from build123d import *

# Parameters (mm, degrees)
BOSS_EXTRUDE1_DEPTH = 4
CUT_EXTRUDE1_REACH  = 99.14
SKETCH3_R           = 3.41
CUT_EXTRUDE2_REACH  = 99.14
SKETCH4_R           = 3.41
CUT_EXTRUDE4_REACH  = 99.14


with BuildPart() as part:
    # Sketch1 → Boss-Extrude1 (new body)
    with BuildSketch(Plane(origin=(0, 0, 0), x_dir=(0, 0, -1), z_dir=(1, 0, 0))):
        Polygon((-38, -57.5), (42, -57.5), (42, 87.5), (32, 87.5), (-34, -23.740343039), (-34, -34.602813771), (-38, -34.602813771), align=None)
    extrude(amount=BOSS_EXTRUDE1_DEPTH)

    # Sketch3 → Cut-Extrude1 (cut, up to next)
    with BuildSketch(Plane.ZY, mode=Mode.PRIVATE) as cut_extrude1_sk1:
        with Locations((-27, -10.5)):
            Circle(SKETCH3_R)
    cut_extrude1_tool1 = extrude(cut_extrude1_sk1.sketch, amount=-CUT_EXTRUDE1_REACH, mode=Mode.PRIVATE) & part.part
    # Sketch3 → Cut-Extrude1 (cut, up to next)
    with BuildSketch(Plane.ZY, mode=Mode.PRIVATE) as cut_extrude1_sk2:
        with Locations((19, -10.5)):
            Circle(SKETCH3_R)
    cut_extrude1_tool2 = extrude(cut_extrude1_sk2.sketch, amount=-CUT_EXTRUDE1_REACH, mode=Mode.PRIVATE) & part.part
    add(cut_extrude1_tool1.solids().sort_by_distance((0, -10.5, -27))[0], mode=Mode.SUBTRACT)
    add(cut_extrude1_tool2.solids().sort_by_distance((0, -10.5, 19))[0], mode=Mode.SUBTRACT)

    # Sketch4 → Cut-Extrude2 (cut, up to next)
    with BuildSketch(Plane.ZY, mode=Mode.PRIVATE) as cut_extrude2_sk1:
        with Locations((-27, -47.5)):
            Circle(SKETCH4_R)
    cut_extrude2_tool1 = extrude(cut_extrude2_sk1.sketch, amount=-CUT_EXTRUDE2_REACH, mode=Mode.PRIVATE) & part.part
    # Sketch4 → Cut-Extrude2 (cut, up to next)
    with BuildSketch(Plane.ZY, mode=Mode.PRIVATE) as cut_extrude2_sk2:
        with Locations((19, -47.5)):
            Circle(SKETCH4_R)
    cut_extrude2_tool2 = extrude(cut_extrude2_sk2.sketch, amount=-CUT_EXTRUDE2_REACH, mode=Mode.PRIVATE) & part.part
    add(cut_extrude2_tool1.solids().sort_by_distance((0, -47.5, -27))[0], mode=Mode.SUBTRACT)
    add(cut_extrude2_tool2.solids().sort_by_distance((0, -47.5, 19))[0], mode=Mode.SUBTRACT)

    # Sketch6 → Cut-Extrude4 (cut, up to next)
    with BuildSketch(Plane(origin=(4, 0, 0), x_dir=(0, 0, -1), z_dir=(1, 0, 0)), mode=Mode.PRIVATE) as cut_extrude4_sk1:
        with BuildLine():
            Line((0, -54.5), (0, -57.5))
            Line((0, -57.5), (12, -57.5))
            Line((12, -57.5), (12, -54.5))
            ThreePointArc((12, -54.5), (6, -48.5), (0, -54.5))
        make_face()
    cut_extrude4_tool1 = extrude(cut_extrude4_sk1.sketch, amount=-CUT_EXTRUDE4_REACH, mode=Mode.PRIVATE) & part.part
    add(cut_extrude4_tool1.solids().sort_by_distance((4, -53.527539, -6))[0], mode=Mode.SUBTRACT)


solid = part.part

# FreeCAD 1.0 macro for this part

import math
import FreeCAD as App
import Part
import Sketcher
from FreeCAD import Vector


def add_polygon(sketch, points):
    """Adds a closed chain of lines whose ends are joined by coincident constraints."""
    first, n = sketch.GeometryCount, len(points)
    for a, b in zip(points, points[1:] + points[:1]):
        sketch.addGeometry(Part.LineSegment(App.Vector(*a, 0), App.Vector(*b, 0)), False)
    for i in range(n):
        sketch.addConstraint(Sketcher.Constraint("Coincident", first + i, 2, first + (i + 1) % n, 1))

doc = App.newDocument("Part")
body = doc.addObject("PartDesign::Body", "Body")

# Sketch on YZ plane
sketch1 = doc.addObject("Sketcher::SketchObject", "Sketch")
body.addObject(sketch1)
sketch1.AttachmentSupport = (doc.YZ_Plane, [""])
sketch1.MapMode = "FlatFace"
add_polygon(sketch1, [(-57.5, 38), (-57.5, -42), (87.5, -42), (87.5, -32), (-23.7, 34), (-34.6, 34), (-34.6, 38)])  # lines 0-6
sketch1.addConstraint([
    Sketcher.Constraint("Vertical", 0),
    Sketcher.Constraint("Horizontal", 1),
    Sketcher.Constraint("Vertical", 2),
    Sketcher.Constraint("Horizontal", 4),
    Sketcher.Constraint("Vertical", 5),
    Sketcher.Constraint("Horizontal", 6),
    Sketcher.Constraint("DistanceX", 1, 1, 1, 2, 145.0),
    Sketcher.Constraint("DistanceY", 0, 2, 0, 1, 80.0),
    Sketcher.Constraint("DistanceY", 2, 1, 2, 2, 10.0),
    Sketcher.Constraint("DistanceY", 5, 1, 5, 2, 4.0),
    Sketcher.Constraint("DistanceY", 0, 2, -1, 1, 42.0),
    Sketcher.Constraint("DistanceX", 0, 2, -1, 1, 57.5),
    Sketcher.Constraint("Distance", 3, 129.346101),
    Sketcher.Constraint("DistanceX", 4, 2, 4, 1, 10.862471),
])
pad1 = doc.addObject("PartDesign::Pad", "Pad")
body.addObject(pad1)
pad1.Profile = sketch1
pad1.Length = 4

# Sketch on YZ plane
sketch2 = doc.addObject("Sketcher::SketchObject", "Sketch001")
body.addObject(sketch2)
sketch2.AttachmentSupport = (doc.YZ_Plane, [""])
sketch2.MapMode = "FlatFace"
sketch2.addGeometry(Part.Circle(Vector(-10.5, -27, 0), Vector(0, 0, 1), 3.4), False)
sketch2.addConstraint([
    Sketcher.Constraint("Diameter", 0, 6.82),
    Sketcher.Constraint("DistanceY", 0, 3, -1, 1, 27.0),
    Sketcher.Constraint("DistanceX", 0, 3, -1, 1, 10.5),
])
pocket1 = doc.addObject("PartDesign::Pocket", "Pocket")
body.addObject(pocket1)
pocket1.Profile = sketch2
pocket1.Type = "UpToFirst"
pocket1.Reversed = True

# Sketch on YZ plane
sketch3 = doc.addObject("Sketcher::SketchObject", "Sketch002")
body.addObject(sketch3)
sketch3.AttachmentSupport = (doc.YZ_Plane, [""])
sketch3.MapMode = "FlatFace"
sketch3.addGeometry(Part.Circle(Vector(-10.5, 19, 0), Vector(0, 0, 1), 3.4), False)
sketch3.addConstraint([
    Sketcher.Constraint("Diameter", 0, 6.82),
    Sketcher.Constraint("DistanceY", -1, 1, 0, 3, 19.0),
    Sketcher.Constraint("DistanceX", 0, 3, -1, 1, 10.5),
])
pocket2 = doc.addObject("PartDesign::Pocket", "Pocket001")
body.addObject(pocket2)
pocket2.Profile = sketch3
pocket2.Type = "UpToFirst"
pocket2.Reversed = True

# Sketch on YZ plane
sketch4 = doc.addObject("Sketcher::SketchObject", "Sketch003")
body.addObject(sketch4)
sketch4.AttachmentSupport = (doc.YZ_Plane, [""])
sketch4.MapMode = "FlatFace"
sketch4.addGeometry(Part.Circle(Vector(-47.5, -27, 0), Vector(0, 0, 1), 3.4), False)
sketch4.addConstraint([
    Sketcher.Constraint("Diameter", 0, 6.82),
    Sketcher.Constraint("DistanceY", 0, 3, -1, 1, 27.0),
    Sketcher.Constraint("DistanceX", 0, 3, -1, 1, 47.5),
])
pocket3 = doc.addObject("PartDesign::Pocket", "Pocket002")
body.addObject(pocket3)
pocket3.Profile = sketch4
pocket3.Type = "UpToFirst"
pocket3.Reversed = True

# Sketch on YZ plane
sketch5 = doc.addObject("Sketcher::SketchObject", "Sketch004")
body.addObject(sketch5)
sketch5.AttachmentSupport = (doc.YZ_Plane, [""])
sketch5.MapMode = "FlatFace"
sketch5.addGeometry(Part.Circle(Vector(-47.5, 19, 0), Vector(0, 0, 1), 3.4), False)
sketch5.addConstraint([
    Sketcher.Constraint("Diameter", 0, 6.82),
    Sketcher.Constraint("DistanceY", -1, 1, 0, 3, 19.0),
    Sketcher.Constraint("DistanceX", 0, 3, -1, 1, 47.5),
])
pocket4 = doc.addObject("PartDesign::Pocket", "Pocket003")
body.addObject(pocket4)
pocket4.Profile = sketch5
pocket4.Type = "UpToFirst"
pocket4.Reversed = True

# Sketch on YZ plane
sketch6 = doc.addObject("Sketcher::SketchObject", "Sketch005")
body.addObject(sketch6)
sketch6.AttachmentSupport = (doc.YZ_Plane, [""])
sketch6.MapMode = "FlatFace"
sketch6.AttachmentOffset = App.Placement(Vector(0, 0, 4), App.Rotation())
sketch6.addGeometry([
    Part.LineSegment(Vector(-54.5, 0, 0), Vector(-57.5, 0, 0)),
    Part.LineSegment(Vector(-57.5, 0, 0), Vector(-57.5, -12, 0)),
    Part.LineSegment(Vector(-57.5, -12, 0), Vector(-54.5, -12, 0)),
    Part.ArcOfCircle(Part.Circle(Vector(-54.5, -6, 0), Vector(0, 0, 1), 6), math.radians(-90), math.radians(90)),
], False)
sketch6.addConstraint([
    Sketcher.Constraint("Coincident", 0, 2, 1, 1),
    Sketcher.Constraint("Coincident", 1, 2, 2, 1),
    Sketcher.Constraint("Tangent", 2, 2, 3, 1),
    Sketcher.Constraint("Tangent", 3, 2, 0, 1),
    Sketcher.Constraint("Horizontal", 0),
    Sketcher.Constraint("Vertical", 1),
    Sketcher.Constraint("Horizontal", 2),
    Sketcher.Constraint("PointOnObject", 0, 2, -1),
    Sketcher.Constraint("Radius", 3, 6.0),
    Sketcher.Constraint("DistanceX", 0, 2, 0, 1, 3.0),
    Sketcher.Constraint("DistanceX", 3, 3, -1, 1, 54.5),
])
pocket5 = doc.addObject("PartDesign::Pocket", "Pocket004")
body.addObject(pocket5)
pocket5.Profile = sketch6
pocket5.Type = "UpToFirst"

doc.recompute()
